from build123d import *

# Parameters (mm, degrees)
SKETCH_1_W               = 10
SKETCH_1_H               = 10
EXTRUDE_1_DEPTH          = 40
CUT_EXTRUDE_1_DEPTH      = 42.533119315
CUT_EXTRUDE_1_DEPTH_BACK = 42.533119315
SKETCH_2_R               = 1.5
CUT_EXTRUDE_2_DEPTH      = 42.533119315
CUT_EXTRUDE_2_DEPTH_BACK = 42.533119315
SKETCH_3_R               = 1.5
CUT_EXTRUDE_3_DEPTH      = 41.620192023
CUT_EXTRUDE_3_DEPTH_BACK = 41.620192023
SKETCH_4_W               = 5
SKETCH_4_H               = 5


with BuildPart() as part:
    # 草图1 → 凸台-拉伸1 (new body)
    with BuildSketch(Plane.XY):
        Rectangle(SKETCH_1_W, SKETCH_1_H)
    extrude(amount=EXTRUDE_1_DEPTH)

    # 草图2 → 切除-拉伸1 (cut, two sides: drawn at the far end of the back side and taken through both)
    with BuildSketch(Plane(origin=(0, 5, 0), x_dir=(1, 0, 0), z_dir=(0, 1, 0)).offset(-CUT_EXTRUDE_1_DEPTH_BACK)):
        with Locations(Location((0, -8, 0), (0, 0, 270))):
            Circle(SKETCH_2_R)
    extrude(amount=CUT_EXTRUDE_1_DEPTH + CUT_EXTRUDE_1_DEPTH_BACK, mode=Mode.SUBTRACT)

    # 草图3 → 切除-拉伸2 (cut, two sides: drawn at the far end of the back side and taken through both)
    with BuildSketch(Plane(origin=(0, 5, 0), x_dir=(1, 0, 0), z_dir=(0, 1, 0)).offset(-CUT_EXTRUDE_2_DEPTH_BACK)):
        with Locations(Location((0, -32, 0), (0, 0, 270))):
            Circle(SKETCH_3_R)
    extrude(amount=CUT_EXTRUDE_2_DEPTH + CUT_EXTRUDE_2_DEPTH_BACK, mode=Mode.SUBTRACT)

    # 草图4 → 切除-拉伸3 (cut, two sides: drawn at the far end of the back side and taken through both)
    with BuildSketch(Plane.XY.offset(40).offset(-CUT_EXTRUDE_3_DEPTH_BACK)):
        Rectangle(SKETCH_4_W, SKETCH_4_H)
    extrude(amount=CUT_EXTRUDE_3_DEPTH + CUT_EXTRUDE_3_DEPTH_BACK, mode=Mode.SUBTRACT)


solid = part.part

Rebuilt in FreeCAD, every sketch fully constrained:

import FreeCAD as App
import Part
import Sketcher

doc = App.newDocument("Part")
body = doc.addObject("PartDesign::Body", "Body")

# Sketch on XY plane
sketch1 = body.newObject("Sketcher::SketchObject", "Sketch")
sketch1.AttachmentSupport = (doc.getObject("XY_Plane"), [""])
sketch1.MapMode = "FlatFace"
sketch1.addGeometry([
    Part.LineSegment(App.Vector(-5, 5, 0), App.Vector(-5, -5, 0)),
    Part.LineSegment(App.Vector(-5, -5, 0), App.Vector(5, -5, 0)),
    Part.LineSegment(App.Vector(5, -5, 0), App.Vector(5, 5, 0)),
    Part.LineSegment(App.Vector(5, 5, 0), App.Vector(-5, 5, 0)),
], False)
sketch1.addConstraint([
    Sketcher.Constraint("Coincident", 0, 2, 1, 1),
    Sketcher.Constraint("Coincident", 1, 2, 2, 1),
    Sketcher.Constraint("Coincident", 2, 2, 3, 1),
    Sketcher.Constraint("Coincident", 3, 2, 0, 1),
    Sketcher.Constraint("Vertical", 0),
    Sketcher.Constraint("Horizontal", 1),
    Sketcher.Constraint("Vertical", 2),
    Sketcher.Constraint("Horizontal", 3),
    Sketcher.Constraint("Symmetric", 0, 2, 2, 2, -1, 1),
    Sketcher.Constraint("Equal", 3, 0),
    Sketcher.Constraint("DistanceX", 1, 1, 1, 2, 10.0),
])
pad1 = body.newObject("PartDesign::Pad", "Pad")
pad1.Profile = sketch1
pad1.Length = 40

# Sketch on XZ plane
sketch2 = body.newObject("Sketcher::SketchObject", "Sketch001")
sketch2.AttachmentSupport = (doc.getObject("XZ_Plane"), [""])
sketch2.MapMode = "FlatFace"
sketch2.AttachmentOffset = App.Placement(App.Vector(0, 0, -5), App.Rotation())
sketch2.addGeometry(Part.Circle(App.Vector(0, 8, 0), App.Vector(0, 0, 1), 1.5), False)
sketch2.addConstraint([
    Sketcher.Constraint("PointOnObject", 0, 3, -2),
    Sketcher.Constraint("Diameter", 0, 3.0),
    Sketcher.Constraint("DistanceY", -1, 1, 0, 3, 8.0),
])
pocket1 = body.newObject("PartDesign::Pocket", "Pocket")
pocket1.Profile = sketch2
pocket1.Type = "ThroughAll"
pocket1.Midplane = True

# Sketch on XZ plane
sketch3 = body.newObject("Sketcher::SketchObject", "Sketch002")
sketch3.AttachmentSupport = (doc.getObject("XZ_Plane"), [""])
sketch3.MapMode = "FlatFace"
sketch3.AttachmentOffset = App.Placement(App.Vector(0, 0, -5), App.Rotation())
sketch3.addGeometry(Part.Circle(App.Vector(0, 32, 0), App.Vector(0, 0, 1), 1.5), False)
sketch3.addConstraint([
    Sketcher.Constraint("PointOnObject", 0, 3, -2),
    Sketcher.Constraint("Diameter", 0, 3.0),
    Sketcher.Constraint("DistanceY", -1, 1, 0, 3, 32.0),
])
pocket2 = body.newObject("PartDesign::Pocket", "Pocket001")
pocket2.Profile = sketch3
pocket2.Type = "ThroughAll"
pocket2.Midplane = True

# Sketch on XY plane
sketch4 = body.newObject("Sketcher::SketchObject", "Sketch003")
sketch4.AttachmentSupport = (doc.getObject("XY_Plane"), [""])
sketch4.MapMode = "FlatFace"
sketch4.AttachmentOffset = App.Placement(App.Vector(0, 0, 40), App.Rotation())
sketch4.addGeometry([
    Part.LineSegment(App.Vector(-2.5, 2.5, 0), App.Vector(-2.5, -2.5, 0)),
    Part.LineSegment(App.Vector(-2.5, -2.5, 0), App.Vector(2.5, -2.5, 0)),
    Part.LineSegment(App.Vector(2.5, -2.5, 0), App.Vector(2.5, 2.5, 0)),
    Part.LineSegment(App.Vector(2.5, 2.5, 0), App.Vector(-2.5, 2.5, 0)),
], False)
sketch4.addConstraint([
    Sketcher.Constraint("Coincident", 0, 2, 1, 1),
    Sketcher.Constraint("Coincident", 1, 2, 2, 1),
    Sketcher.Constraint("Coincident", 2, 2, 3, 1),
    Sketcher.Constraint("Coincident", 3, 2, 0, 1),
    Sketcher.Constraint("Vertical", 0),
    Sketcher.Constraint("Horizontal", 1),
    Sketcher.Constraint("Vertical", 2),
    Sketcher.Constraint("Horizontal", 3),
    Sketcher.Constraint("Symmetric", 0, 2, 2, 2, -1, 1),
    Sketcher.Constraint("Equal", 3, 0),
    Sketcher.Constraint("DistanceX", 1, 1, 1, 2, 5.0),
])
pocket3 = body.newObject("PartDesign::Pocket", "Pocket002")
pocket3.Profile = sketch4
pocket3.Type = "ThroughAll"
pocket3.Midplane = True

doc.recompute()
